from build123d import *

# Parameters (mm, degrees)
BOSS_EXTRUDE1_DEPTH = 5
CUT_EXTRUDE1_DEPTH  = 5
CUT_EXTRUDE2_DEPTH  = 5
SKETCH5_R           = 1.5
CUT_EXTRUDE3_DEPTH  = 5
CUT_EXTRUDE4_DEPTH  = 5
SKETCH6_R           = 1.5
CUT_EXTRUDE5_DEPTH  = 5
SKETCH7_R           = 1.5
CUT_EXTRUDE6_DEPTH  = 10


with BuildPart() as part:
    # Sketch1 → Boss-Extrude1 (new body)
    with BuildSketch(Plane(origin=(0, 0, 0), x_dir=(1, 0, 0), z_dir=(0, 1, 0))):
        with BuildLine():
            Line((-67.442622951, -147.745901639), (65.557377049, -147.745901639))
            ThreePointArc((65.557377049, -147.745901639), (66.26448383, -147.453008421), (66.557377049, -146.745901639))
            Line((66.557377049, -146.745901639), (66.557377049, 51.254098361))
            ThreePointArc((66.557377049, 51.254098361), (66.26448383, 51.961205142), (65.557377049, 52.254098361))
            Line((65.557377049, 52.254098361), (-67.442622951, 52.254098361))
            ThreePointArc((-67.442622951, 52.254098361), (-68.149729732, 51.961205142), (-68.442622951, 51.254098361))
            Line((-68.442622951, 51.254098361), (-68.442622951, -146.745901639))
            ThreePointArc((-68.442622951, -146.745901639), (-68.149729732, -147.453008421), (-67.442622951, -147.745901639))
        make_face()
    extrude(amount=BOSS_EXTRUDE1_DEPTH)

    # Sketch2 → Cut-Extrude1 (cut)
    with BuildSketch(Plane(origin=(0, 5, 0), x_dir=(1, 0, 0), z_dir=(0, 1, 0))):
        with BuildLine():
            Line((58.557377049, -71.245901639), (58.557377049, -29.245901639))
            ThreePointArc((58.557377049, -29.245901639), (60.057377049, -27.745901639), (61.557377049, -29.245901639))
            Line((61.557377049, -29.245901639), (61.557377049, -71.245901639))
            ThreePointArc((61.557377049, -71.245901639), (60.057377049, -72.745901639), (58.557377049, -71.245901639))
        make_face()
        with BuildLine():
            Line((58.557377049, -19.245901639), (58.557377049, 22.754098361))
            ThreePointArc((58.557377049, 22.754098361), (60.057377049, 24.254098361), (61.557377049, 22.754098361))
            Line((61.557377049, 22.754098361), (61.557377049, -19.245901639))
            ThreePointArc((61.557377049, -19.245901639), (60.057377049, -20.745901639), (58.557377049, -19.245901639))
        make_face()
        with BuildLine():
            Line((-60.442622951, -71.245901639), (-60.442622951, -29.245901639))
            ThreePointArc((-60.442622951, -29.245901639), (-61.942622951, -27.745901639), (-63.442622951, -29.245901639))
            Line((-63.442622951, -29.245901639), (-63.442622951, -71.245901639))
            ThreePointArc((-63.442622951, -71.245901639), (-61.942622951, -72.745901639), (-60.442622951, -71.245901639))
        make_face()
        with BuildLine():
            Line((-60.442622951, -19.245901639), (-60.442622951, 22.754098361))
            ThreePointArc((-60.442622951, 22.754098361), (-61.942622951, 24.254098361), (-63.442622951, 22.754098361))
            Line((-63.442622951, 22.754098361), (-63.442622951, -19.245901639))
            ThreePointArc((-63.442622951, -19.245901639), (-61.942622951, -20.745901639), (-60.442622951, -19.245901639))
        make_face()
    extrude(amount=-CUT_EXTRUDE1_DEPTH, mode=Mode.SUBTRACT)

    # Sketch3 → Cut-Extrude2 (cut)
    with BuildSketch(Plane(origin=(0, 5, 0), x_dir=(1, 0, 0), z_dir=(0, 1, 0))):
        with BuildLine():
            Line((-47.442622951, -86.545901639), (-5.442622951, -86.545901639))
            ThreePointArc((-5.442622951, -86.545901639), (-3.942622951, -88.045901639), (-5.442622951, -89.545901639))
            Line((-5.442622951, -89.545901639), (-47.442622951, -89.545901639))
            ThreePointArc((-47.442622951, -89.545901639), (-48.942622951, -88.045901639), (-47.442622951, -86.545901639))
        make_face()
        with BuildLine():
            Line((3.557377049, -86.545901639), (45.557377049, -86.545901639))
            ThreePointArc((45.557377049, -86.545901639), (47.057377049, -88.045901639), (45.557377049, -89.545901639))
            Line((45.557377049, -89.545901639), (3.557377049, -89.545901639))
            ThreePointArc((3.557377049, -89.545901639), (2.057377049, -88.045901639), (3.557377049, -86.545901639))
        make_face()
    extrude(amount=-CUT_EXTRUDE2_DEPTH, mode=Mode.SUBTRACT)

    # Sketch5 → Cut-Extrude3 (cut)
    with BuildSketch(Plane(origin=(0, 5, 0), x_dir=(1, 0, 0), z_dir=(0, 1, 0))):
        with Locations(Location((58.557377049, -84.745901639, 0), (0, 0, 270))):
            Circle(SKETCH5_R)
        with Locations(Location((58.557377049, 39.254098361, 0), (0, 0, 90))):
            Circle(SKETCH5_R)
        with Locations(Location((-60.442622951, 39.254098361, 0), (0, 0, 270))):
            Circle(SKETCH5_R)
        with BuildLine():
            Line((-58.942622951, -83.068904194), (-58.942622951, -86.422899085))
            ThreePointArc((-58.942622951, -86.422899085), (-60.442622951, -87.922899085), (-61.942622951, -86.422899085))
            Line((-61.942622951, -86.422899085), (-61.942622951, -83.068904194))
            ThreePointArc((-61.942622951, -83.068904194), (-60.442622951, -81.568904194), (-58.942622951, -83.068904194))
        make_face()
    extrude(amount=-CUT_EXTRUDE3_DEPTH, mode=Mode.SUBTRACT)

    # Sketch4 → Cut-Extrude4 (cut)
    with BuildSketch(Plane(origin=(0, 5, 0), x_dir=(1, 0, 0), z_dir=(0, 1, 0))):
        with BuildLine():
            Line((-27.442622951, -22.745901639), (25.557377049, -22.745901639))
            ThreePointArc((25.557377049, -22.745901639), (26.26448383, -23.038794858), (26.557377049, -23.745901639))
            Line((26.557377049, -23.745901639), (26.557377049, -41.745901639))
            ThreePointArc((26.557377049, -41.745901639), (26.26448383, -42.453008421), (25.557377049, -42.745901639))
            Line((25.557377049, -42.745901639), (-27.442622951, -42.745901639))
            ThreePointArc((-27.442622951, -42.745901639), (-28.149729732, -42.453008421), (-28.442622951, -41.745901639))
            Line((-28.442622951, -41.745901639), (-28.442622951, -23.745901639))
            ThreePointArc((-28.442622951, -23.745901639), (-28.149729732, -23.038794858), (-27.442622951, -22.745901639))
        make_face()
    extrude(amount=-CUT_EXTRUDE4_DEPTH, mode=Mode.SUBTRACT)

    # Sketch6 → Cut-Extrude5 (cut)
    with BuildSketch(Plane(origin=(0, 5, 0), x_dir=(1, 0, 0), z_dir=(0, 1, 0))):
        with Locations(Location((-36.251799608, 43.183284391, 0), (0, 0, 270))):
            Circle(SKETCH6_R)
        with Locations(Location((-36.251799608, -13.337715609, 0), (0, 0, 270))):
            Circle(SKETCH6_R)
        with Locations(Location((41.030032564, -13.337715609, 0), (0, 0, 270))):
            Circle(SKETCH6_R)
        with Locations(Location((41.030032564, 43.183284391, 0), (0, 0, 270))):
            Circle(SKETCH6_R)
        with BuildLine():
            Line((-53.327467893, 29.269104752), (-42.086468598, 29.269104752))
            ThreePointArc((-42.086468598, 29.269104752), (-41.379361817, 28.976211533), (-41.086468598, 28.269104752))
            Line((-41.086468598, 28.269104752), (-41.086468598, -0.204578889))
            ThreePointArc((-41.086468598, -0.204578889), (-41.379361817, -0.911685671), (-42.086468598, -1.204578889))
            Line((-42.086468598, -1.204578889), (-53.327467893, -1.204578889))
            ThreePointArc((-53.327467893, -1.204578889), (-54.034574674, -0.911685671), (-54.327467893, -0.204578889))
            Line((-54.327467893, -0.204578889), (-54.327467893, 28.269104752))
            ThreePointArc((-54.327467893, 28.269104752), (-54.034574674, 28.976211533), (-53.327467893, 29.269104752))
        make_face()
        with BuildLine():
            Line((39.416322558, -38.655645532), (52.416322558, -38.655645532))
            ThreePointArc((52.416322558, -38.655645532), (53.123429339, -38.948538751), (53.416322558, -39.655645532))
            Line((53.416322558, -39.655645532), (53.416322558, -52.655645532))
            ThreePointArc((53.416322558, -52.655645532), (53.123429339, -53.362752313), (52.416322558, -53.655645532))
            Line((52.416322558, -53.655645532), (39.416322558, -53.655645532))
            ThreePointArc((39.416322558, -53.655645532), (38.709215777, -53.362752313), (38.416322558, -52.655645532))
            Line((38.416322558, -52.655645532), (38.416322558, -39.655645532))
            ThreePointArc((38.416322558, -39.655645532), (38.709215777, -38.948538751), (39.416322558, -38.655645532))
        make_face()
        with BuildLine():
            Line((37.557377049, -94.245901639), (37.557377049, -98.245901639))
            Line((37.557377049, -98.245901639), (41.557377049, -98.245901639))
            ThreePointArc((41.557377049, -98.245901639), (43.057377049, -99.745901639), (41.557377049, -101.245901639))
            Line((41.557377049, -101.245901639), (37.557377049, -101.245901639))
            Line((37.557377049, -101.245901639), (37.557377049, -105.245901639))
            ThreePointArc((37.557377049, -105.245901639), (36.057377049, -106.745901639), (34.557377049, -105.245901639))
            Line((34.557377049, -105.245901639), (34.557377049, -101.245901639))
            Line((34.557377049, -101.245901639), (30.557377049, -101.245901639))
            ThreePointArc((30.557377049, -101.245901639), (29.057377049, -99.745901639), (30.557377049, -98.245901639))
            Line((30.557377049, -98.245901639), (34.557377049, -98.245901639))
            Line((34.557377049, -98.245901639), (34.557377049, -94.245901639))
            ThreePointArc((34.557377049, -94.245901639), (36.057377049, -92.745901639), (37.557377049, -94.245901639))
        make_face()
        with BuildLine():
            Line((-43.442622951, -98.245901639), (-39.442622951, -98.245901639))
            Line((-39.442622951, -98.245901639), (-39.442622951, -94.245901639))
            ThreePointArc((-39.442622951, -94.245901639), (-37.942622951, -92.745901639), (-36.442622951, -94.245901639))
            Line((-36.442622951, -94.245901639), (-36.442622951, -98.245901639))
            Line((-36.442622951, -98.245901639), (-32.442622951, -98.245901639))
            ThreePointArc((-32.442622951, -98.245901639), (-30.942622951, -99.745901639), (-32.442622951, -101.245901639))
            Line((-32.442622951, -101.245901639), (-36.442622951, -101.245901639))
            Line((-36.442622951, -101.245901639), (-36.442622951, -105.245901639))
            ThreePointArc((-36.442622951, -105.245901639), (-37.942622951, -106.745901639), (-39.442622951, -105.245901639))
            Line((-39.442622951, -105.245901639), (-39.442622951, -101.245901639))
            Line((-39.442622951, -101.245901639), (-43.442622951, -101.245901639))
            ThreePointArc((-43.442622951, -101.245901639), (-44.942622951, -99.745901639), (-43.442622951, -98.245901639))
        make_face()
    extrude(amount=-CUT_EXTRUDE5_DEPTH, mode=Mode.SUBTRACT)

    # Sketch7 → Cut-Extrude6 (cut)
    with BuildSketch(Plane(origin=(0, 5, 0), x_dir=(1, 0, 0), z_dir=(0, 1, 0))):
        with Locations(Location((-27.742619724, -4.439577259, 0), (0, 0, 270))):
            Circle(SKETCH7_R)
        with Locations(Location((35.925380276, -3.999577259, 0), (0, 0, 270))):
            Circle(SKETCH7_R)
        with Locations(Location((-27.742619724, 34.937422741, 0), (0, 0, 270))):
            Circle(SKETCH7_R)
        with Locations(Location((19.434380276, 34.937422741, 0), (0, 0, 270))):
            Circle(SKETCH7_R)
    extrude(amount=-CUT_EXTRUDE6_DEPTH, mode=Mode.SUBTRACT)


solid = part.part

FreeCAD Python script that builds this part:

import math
import FreeCAD as App
import Part
import Sketcher
from FreeCAD import Vector
Q = App.Units.Quantity

doc = App.newDocument("Part")
body = doc.addObject("PartDesign::Body", "Body")

# Sketch on XZ plane
sketch1 = body.newObject("Sketcher::SketchObject", "Sketch")
sketch1.AttachmentSupport = (doc.getObject("XZ_Plane"), [""])
sketch1.MapMode = "FlatFace"
sketch1.addGeometry([
    Part.LineSegment(Vector(-67.442623, 147.745902, 0), Vector(65.557377, 147.745902, 0)),  # 0
    Part.ArcOfCircle(Part.Circle(Vector(65.557377, 146.745902, 0), Vector(0, 0, 1), 1), math.radians(0), math.radians(90)),  # 1
    Part.LineSegment(Vector(66.557377, 146.745902, 0), Vector(66.557377, -51.254098, 0)),  # 2
    Part.ArcOfCircle(Part.Circle(Vector(65.557377, -51.254098, 0), Vector(0, 0, 1), 1), math.radians(-90), math.radians(0)),  # 3
    Part.LineSegment(Vector(65.557377, -52.254098, 0), Vector(-67.442623, -52.254098, 0)),  # 4
    Part.ArcOfCircle(Part.Circle(Vector(-67.442623, -51.254098, 0), Vector(0, 0, 1), 1), math.radians(-180), math.radians(-90)),  # 5
    Part.LineSegment(Vector(-68.442623, -51.254098, 0), Vector(-68.442623, 146.745902, 0)),  # 6
    Part.ArcOfCircle(Part.Circle(Vector(-67.442623, 146.745902, 0), Vector(0, 0, 1), 1), math.radians(90), math.radians(180)),  # 7
], False)
sketch1.addConstraint([
    Sketcher.Constraint("Tangent", 0, 2, 1, 2),
    Sketcher.Constraint("Tangent", 1, 1, 2, 1),
    Sketcher.Constraint("Tangent", 2, 2, 3, 2),
    Sketcher.Constraint("Tangent", 3, 1, 4, 1),
    Sketcher.Constraint("Tangent", 4, 2, 5, 2),
    Sketcher.Constraint("Tangent", 5, 1, 6, 1),
    Sketcher.Constraint("Tangent", 6, 2, 7, 2),
    Sketcher.Constraint("Tangent", 7, 1, 0, 1),
    Sketcher.Constraint("Horizontal", 0),
    Sketcher.Constraint("Vertical", 2),
    Sketcher.Constraint("Horizontal", 4),
    Sketcher.Constraint("Vertical", 6),
    Sketcher.Constraint("Equal", 1, 3),
    Sketcher.Constraint("Equal", 3, 5),
    Sketcher.Constraint("Equal", 5, 7),
    Sketcher.Constraint("Radius", 1, Q("1 mm")),
    Sketcher.Constraint("DistanceX", 0, 1, 0, 2, Q("133 mm")),
    Sketcher.Constraint("DistanceY", 2, 2, 2, 1, Q("198 mm")),
    Sketcher.Constraint("DistanceY", -1, 1, 1, 3, Q("146.745902 mm")),
    Sketcher.Constraint("DistanceX", -1, 1, 1, 3, Q("65.557377 mm")),
])
pad1 = body.newObject("PartDesign::Pad", "Pad")
pad1.Profile = sketch1
pad1.Length = 5
pad1.Reversed = True

# Sketch on XZ plane
sketch2 = body.newObject("Sketcher::SketchObject", "Sketch001")
sketch2.AttachmentSupport = (doc.getObject("XZ_Plane"), [""])
sketch2.MapMode = "FlatFace"
sketch2.AttachmentOffset = App.Placement(Vector(0, 0, -5), App.Rotation())
sketch2.addGeometry([
    Part.LineSegment(Vector(58.557377, 29.245902, 0), Vector(58.557377, 71.245902, 0)),  # 0
    Part.ArcOfCircle(Part.Circle(Vector(60.057377, 71.245902, 0), Vector(0, 0, 1), 1.5), math.radians(0), math.radians(180)),  # 1
    Part.LineSegment(Vector(61.557377, 71.245902, 0), Vector(61.557377, 29.245902, 0)),  # 2
    Part.ArcOfCircle(Part.Circle(Vector(60.057377, 29.245902, 0), Vector(0, 0, 1), 1.5), math.radians(180), math.radians(360)),  # 3
    Part.LineSegment(Vector(58.557377, -22.754098, 0), Vector(58.557377, 19.245902, 0)),  # 4
    Part.ArcOfCircle(Part.Circle(Vector(60.057377, 19.245902, 0), Vector(0, 0, 1), 1.5), math.radians(0), math.radians(180)),  # 5
    Part.LineSegment(Vector(61.557377, 19.245902, 0), Vector(61.557377, -22.754098, 0)),  # 6
    Part.ArcOfCircle(Part.Circle(Vector(60.057377, -22.754098, 0), Vector(0, 0, 1), 1.5), math.radians(180), math.radians(360)),  # 7
    Part.LineSegment(Vector(-60.442623, 71.245902, 0), Vector(-60.442623, 29.245902, 0)),  # 8
    Part.ArcOfCircle(Part.Circle(Vector(-61.942623, 29.245902, 0), Vector(0, 0, 1), 1.5), math.radians(180), math.radians(360)),  # 9
    Part.LineSegment(Vector(-63.442623, 29.245902, 0), Vector(-63.442623, 71.245902, 0)),  # 10
    Part.ArcOfCircle(Part.Circle(Vector(-61.942623, 71.245902, 0), Vector(0, 0, 1), 1.5), math.radians(0), math.radians(180)),  # 11
    Part.LineSegment(Vector(-60.442623, 19.245902, 0), Vector(-60.442623, -22.754098, 0)),  # 12
    Part.ArcOfCircle(Part.Circle(Vector(-61.942623, -22.754098, 0), Vector(0, 0, 1), 1.5), math.radians(180), math.radians(360)),  # 13
    Part.LineSegment(Vector(-63.442623, -22.754098, 0), Vector(-63.442623, 19.245902, 0)),  # 14
    Part.ArcOfCircle(Part.Circle(Vector(-61.942623, 19.245902, 0), Vector(0, 0, 1), 1.5), math.radians(0), math.radians(180)),  # 15
], False)
sketch2.addConstraint([
    Sketcher.Constraint("Tangent", 0, 2, 1, 2),
    Sketcher.Constraint("Tangent", 1, 1, 2, 1),
    Sketcher.Constraint("Tangent", 2, 2, 3, 2),
    Sketcher.Constraint("Tangent", 3, 1, 0, 1),
    Sketcher.Constraint("Tangent", 4, 2, 5, 2),
    Sketcher.Constraint("Tangent", 5, 1, 6, 1),
    Sketcher.Constraint("Tangent", 6, 2, 7, 2),
    Sketcher.Constraint("Tangent", 7, 1, 4, 1),
    Sketcher.Constraint("Tangent", 8, 2, 9, 2),
    Sketcher.Constraint("Tangent", 9, 1, 10, 1),
    Sketcher.Constraint("Tangent", 10, 2, 11, 2),
    Sketcher.Constraint("Tangent", 11, 1, 8, 1),
    Sketcher.Constraint("Tangent", 12, 2, 13, 2),
    Sketcher.Constraint("Tangent", 13, 1, 14, 1),
    Sketcher.Constraint("Tangent", 14, 2, 15, 2),
    Sketcher.Constraint("Tangent", 15, 1, 12, 1),
    Sketcher.Constraint("Vertical", 0),
    Sketcher.Constraint("Vertical", 2),
    Sketcher.Constraint("Vertical", 4),
    Sketcher.Constraint("Vertical", 6),
    Sketcher.Constraint("Vertical", 8),
    Sketcher.Constraint("Vertical", 10),
    Sketcher.Constraint("Vertical", 12),
    Sketcher.Constraint("Vertical", 14),
    Sketcher.Constraint("Equal", 3, 5),
    Sketcher.Constraint("Equal", 7, 9),
    Sketcher.Constraint("Equal", 11, 13),
    Sketcher.Constraint("Horizontal", 3, 3, 9, 3),
    Sketcher.Constraint("Horizontal", 1, 3, 11, 3),
    Sketcher.Constraint("Horizontal", 7, 3, 13, 3),
    Sketcher.Constraint("Horizontal", 5, 3, 15, 3),
    Sketcher.Constraint("Vertical", 3, 3, 5, 3),
    Sketcher.Constraint("Vertical", 11, 3, 13, 3),
    Sketcher.Constraint("Equal", 2, 4),
    Sketcher.Constraint("Radius", 1, Q("1.5 mm")),
    Sketcher.Constraint("DistanceY", 0, 1, 0, 2, Q("42 mm")),
    Sketcher.Constraint("DistanceY", 5, 3, 3, 3, Q("10 mm")),
    Sketcher.Constraint("DistanceX", 9, 3, 3, 3, Q("122 mm")),
    Sketcher.Constraint("DistanceY", -1, 1, 1, 3, Q("71.245902 mm")),
    Sketcher.Constraint("DistanceX", -1, 1, 1, 3, Q("60.057377 mm")),
])
pocket1 = body.newObject("PartDesign::Pocket", "Pocket")
pocket1.Profile = sketch2
pocket1.Length = 5
pocket1.Reversed = True

# Sketch on XZ plane
sketch3 = body.newObject("Sketcher::SketchObject", "Sketch002")
sketch3.AttachmentSupport = (doc.getObject("XZ_Plane"), [""])
sketch3.MapMode = "FlatFace"
sketch3.AttachmentOffset = App.Placement(Vector(0, 0, -5), App.Rotation())
sketch3.addGeometry([
    Part.LineSegment(Vector(-5.442623, 86.545902, 0), Vector(-47.442623, 86.545902, 0)),  # 0
    Part.ArcOfCircle(Part.Circle(Vector(-47.442623, 88.045902, 0), Vector(0, 0, 1), 1.5), math.radians(90), math.radians(270)),  # 1
    Part.LineSegment(Vector(-47.442623, 89.545902, 0), Vector(-5.442623, 89.545902, 0)),  # 2
    Part.ArcOfCircle(Part.Circle(Vector(-5.442623, 88.045902, 0), Vector(0, 0, 1), 1.5), math.radians(-90), math.radians(90)),  # 3
    Part.LineSegment(Vector(45.557377, 86.545902, 0), Vector(3.557377, 86.545902, 0)),  # 4
    Part.ArcOfCircle(Part.Circle(Vector(3.557377, 88.045902, 0), Vector(0, 0, 1), 1.5), math.radians(90), math.radians(270)),  # 5
    Part.LineSegment(Vector(3.557377, 89.545902, 0), Vector(45.557377, 89.545902, 0)),  # 6
    Part.ArcOfCircle(Part.Circle(Vector(45.557377, 88.045902, 0), Vector(0, 0, 1), 1.5), math.radians(-90), math.radians(90)),  # 7
], False)
sketch3.addConstraint([
    Sketcher.Constraint("Tangent", 0, 2, 1, 2),
    Sketcher.Constraint("Tangent", 1, 1, 2, 1),
    Sketcher.Constraint("Tangent", 2, 2, 3, 2),
    Sketcher.Constraint("Tangent", 3, 1, 0, 1),
    Sketcher.Constraint("Tangent", 4, 2, 5, 2),
    Sketcher.Constraint("Tangent", 5, 1, 6, 1),
    Sketcher.Constraint("Tangent", 6, 2, 7, 2),
    Sketcher.Constraint("Tangent", 7, 1, 4, 1),
    Sketcher.Constraint("Horizontal", 0),
    Sketcher.Constraint("Horizontal", 2),
    Sketcher.Constraint("Horizontal", 4),
    Sketcher.Constraint("Horizontal", 6),
    Sketcher.Constraint("Equal", 3, 5),
    Sketcher.Constraint("Horizontal", 3, 3, 5, 3),
    Sketcher.Constraint("Equal", 2, 4),
    Sketcher.Constraint("Radius", 1, Q("1.5 mm")),
    Sketcher.Constraint("DistanceX", 0, 2, 0, 1, Q("42 mm")),
    Sketcher.Constraint("DistanceX", 3, 3, 5, 3, Q("9 mm")),
    Sketcher.Constraint("DistanceY", -1, 1, 1, 3, Q("88.045902 mm")),
    Sketcher.Constraint("DistanceX", 1, 3, -1, 1, Q("47.442623 mm")),
])
pocket2 = body.newObject("PartDesign::Pocket", "Pocket001")
pocket2.Profile = sketch3
pocket2.Length = 5
pocket2.Reversed = True

# Sketch on XZ plane
sketch4 = body.newObject("Sketcher::SketchObject", "Sketch003")
sketch4.AttachmentSupport = (doc.getObject("XZ_Plane"), [""])
sketch4.MapMode = "FlatFace"
sketch4.AttachmentOffset = App.Placement(Vector(0, 0, -5), App.Rotation())
sketch4.addGeometry([
    Part.Circle(Vector(58.557377, 84.745902, 0), Vector(0, 0, 1), 1.5),  # 0
    Part.Circle(Vector(58.557377, -39.254098, 0), Vector(0, 0, 1), 1.5),  # 1
    Part.Circle(Vector(-60.442623, -39.254098, 0), Vector(0, 0, 1), 1.5),  # 2
    Part.LineSegment(Vector(-58.942623, 86.422899, 0), Vector(-58.942623, 83.068904, 0)),  # 3
    Part.ArcOfCircle(Part.Circle(Vector(-60.442623, 83.068904, 0), Vector(0, 0, 1), 1.5), math.radians(180), math.radians(360)),  # 4
    Part.LineSegment(Vector(-61.942623, 83.068904, 0), Vector(-61.942623, 86.422899, 0)),  # 5
    Part.ArcOfCircle(Part.Circle(Vector(-60.442623, 86.422899, 0), Vector(0, 0, 1), 1.5), math.radians(0), math.radians(180)),  # 6
], False)
sketch4.addConstraint([
    Sketcher.Constraint("Tangent", 3, 2, 4, 2),
    Sketcher.Constraint("Tangent", 4, 1, 5, 1),
    Sketcher.Constraint("Tangent", 5, 2, 6, 2),
    Sketcher.Constraint("Tangent", 6, 1, 3, 1),
    Sketcher.Constraint("Vertical", 3),
    Sketcher.Constraint("Vertical", 5),
    Sketcher.Constraint("Equal", 0, 1),
    Sketcher.Constraint("Equal", 1, 2),
    Sketcher.Constraint("Equal", 2, 4),
    Sketcher.Constraint("Horizontal", 1, 3, 2, 3),
    Sketcher.Constraint("Vertical", 0, 3, 1, 3),
    Sketcher.Constraint("Vertical", 2, 3, 4, 3),
    Sketcher.Constraint("Diameter", 0, Q("3 mm")),
    Sketcher.Constraint("DistanceY", 1, 3, 0, 3, Q("124 mm")),
    Sketcher.Constraint("DistanceX", 2, 3, 1, 3, Q("119 mm")),
    Sketcher.Constraint("DistanceY", -1, 1, 0, 3, Q("84.745902 mm")),
    Sketcher.Constraint("DistanceY", -1, 1, 6, 3, Q("86.422899 mm")),
    Sketcher.Constraint("DistanceY", 3, 2, 3, 1, Q("3.353995 mm")),
    Sketcher.Constraint("DistanceX", -1, 1, 0, 3, Q("58.557377 mm")),
])
pocket3 = body.newObject("PartDesign::Pocket", "Pocket002")
pocket3.Profile = sketch4
pocket3.Length = 5
pocket3.Reversed = True

# Sketch on XZ plane
sketch5 = body.newObject("Sketcher::SketchObject", "Sketch004")
sketch5.AttachmentSupport = (doc.getObject("XZ_Plane"), [""])
sketch5.MapMode = "FlatFace"
sketch5.AttachmentOffset = App.Placement(Vector(0, 0, -5), App.Rotation())
sketch5.addGeometry([
    Part.LineSegment(Vector(25.557377, 22.745902, 0), Vector(-27.442623, 22.745902, 0)),  # 0
    Part.ArcOfCircle(Part.Circle(Vector(-27.442623, 23.745902, 0), Vector(0, 0, 1), 1), math.radians(-180), math.radians(-90)),  # 1
    Part.LineSegment(Vector(-28.442623, 23.745902, 0), Vector(-28.442623, 41.745902, 0)),  # 2
    Part.ArcOfCircle(Part.Circle(Vector(-27.442623, 41.745902, 0), Vector(0, 0, 1), 1), math.radians(90), math.radians(180)),  # 3
    Part.LineSegment(Vector(-27.442623, 42.745902, 0), Vector(25.557377, 42.745902, 0)),  # 4
    Part.ArcOfCircle(Part.Circle(Vector(25.557377, 41.745902, 0), Vector(0, 0, 1), 1), math.radians(0), math.radians(90)),  # 5
    Part.LineSegment(Vector(26.557377, 41.745902, 0), Vector(26.557377, 23.745902, 0)),  # 6
    Part.ArcOfCircle(Part.Circle(Vector(25.557377, 23.745902, 0), Vector(0, 0, 1), 1), math.radians(-90), math.radians(0)),  # 7
], False)
sketch5.addConstraint([
    Sketcher.Constraint("Tangent", 0, 2, 1, 2),
    Sketcher.Constraint("Tangent", 1, 1, 2, 1),
    Sketcher.Constraint("Tangent", 2, 2, 3, 2),
    Sketcher.Constraint("Tangent", 3, 1, 4, 1),
    Sketcher.Constraint("Tangent", 4, 2, 5, 2),
    Sketcher.Constraint("Tangent", 5, 1, 6, 1),
    Sketcher.Constraint("Tangent", 6, 2, 7, 2),
    Sketcher.Constraint("Tangent", 7, 1, 0, 1),
    Sketcher.Constraint("Horizontal", 0),
    Sketcher.Constraint("Vertical", 2),
    Sketcher.Constraint("Horizontal", 4),
    Sketcher.Constraint("Vertical", 6),
    Sketcher.Constraint("Equal", 1, 3),
    Sketcher.Constraint("Equal", 3, 5),
    Sketcher.Constraint("Equal", 5, 7),
    Sketcher.Constraint("Radius", 1, Q("1 mm")),
    Sketcher.Constraint("DistanceX", 0, 2, 0, 1, Q("53 mm")),
    Sketcher.Constraint("DistanceY", 2, 1, 2, 2, Q("18 mm")),
    Sketcher.Constraint("DistanceY", -1, 1, 1, 3, Q("23.745902 mm")),
    Sketcher.Constraint("DistanceX", 1, 3, -1, 1, Q("27.442623 mm")),
])
pocket4 = body.newObject("PartDesign::Pocket", "Pocket003")
pocket4.Profile = sketch5
pocket4.Length = 5
pocket4.Reversed = True

# Sketch on XZ plane
sketch6 = body.newObject("Sketcher::SketchObject", "Sketch005")
sketch6.AttachmentSupport = (doc.getObject("XZ_Plane"), [""])
sketch6.MapMode = "FlatFace"
sketch6.AttachmentOffset = App.Placement(Vector(0, 0, -5), App.Rotation())
sketch6.addGeometry([
    Part.Circle(Vector(-36.2518, -43.183284, 0), Vector(0, 0, 1), 1.5),  # 0
    Part.Circle(Vector(-36.2518, 13.337716, 0), Vector(0, 0, 1), 1.5),  # 1
    Part.Circle(Vector(41.030033, 13.337716, 0), Vector(0, 0, 1), 1.5),  # 2
    Part.Circle(Vector(41.030033, -43.183284, 0), Vector(0, 0, 1), 1.5),  # 3
    Part.LineSegment(Vector(-42.086469, -29.269105, 0), Vector(-53.327468, -29.269105, 0)),  # 4
    Part.ArcOfCircle(Part.Circle(Vector(-53.327468, -28.269105, 0), Vector(0, 0, 1), 1), math.radians(-180), math.radians(-90)),  # 5
    Part.LineSegment(Vector(-54.327468, -28.269105, 0), Vector(-54.327468, 0.204579, 0)),  # 6
    Part.ArcOfCircle(Part.Circle(Vector(-53.327468, 0.204579, 0), Vector(0, 0, 1), 1), math.radians(90), math.radians(180)),  # 7
    Part.LineSegment(Vector(-53.327468, 1.204579, 0), Vector(-42.086469, 1.204579, 0)),  # 8
    Part.ArcOfCircle(Part.Circle(Vector(-42.086469, 0.204579, 0), Vector(0, 0, 1), 1), math.radians(0), math.radians(90)),  # 9
    Part.LineSegment(Vector(-41.086469, 0.204579, 0), Vector(-41.086469, -28.269105, 0)),  # 10
    Part.ArcOfCircle(Part.Circle(Vector(-42.086469, -28.269105, 0), Vector(0, 0, 1), 1), math.radians(-90), math.radians(0)),  # 11
    Part.LineSegment(Vector(52.416323, 38.655646, 0), Vector(39.416323, 38.655646, 0)),  # 12
    Part.ArcOfCircle(Part.Circle(Vector(39.416323, 39.655646, 0), Vector(0, 0, 1), 1), math.radians(-180), math.radians(-90)),  # 13
    Part.LineSegment(Vector(38.416323, 39.655646, 0), Vector(38.416323, 52.655646, 0)),  # 14
    Part.ArcOfCircle(Part.Circle(Vector(39.416323, 52.655646, 0), Vector(0, 0, 1), 1), math.radians(90), math.radians(180)),  # 15
    Part.LineSegment(Vector(39.416323, 53.655646, 0), Vector(52.416323, 53.655646, 0)),  # 16
    Part.ArcOfCircle(Part.Circle(Vector(52.416323, 52.655646, 0), Vector(0, 0, 1), 1), math.radians(0), math.radians(90)),  # 17
    Part.LineSegment(Vector(53.416323, 52.655646, 0), Vector(53.416323, 39.655646, 0)),  # 18
    Part.ArcOfCircle(Part.Circle(Vector(52.416323, 39.655646, 0), Vector(0, 0, 1), 1), math.radians(-90), math.radians(0)),  # 19
    Part.LineSegment(Vector(37.557377, 98.245902, 0), Vector(37.557377, 94.245902, 0)),  # 20
    Part.ArcOfCircle(Part.Circle(Vector(36.057377, 94.245902, 0), Vector(0, 0, 1), 1.5), math.radians(180), math.radians(360)),  # 21
    Part.LineSegment(Vector(34.557377, 94.245902, 0), Vector(34.557377, 98.245902, 0)),  # 22
    Part.LineSegment(Vector(34.557377, 98.245902, 0), Vector(30.557377, 98.245902, 0)),  # 23
    Part.ArcOfCircle(Part.Circle(Vector(30.557377, 99.745902, 0), Vector(0, 0, 1), 1.5), math.radians(90), math.radians(270)),  # 24
    Part.LineSegment(Vector(30.557377, 101.245902, 0), Vector(34.557377, 101.245902, 0)),  # 25
    Part.LineSegment(Vector(34.557377, 101.245902, 0), Vector(34.557377, 105.245902, 0)),  # 26
    Part.ArcOfCircle(Part.Circle(Vector(36.057377, 105.245902, 0), Vector(0, 0, 1), 1.5), math.radians(0), math.radians(180)),  # 27
    Part.LineSegment(Vector(37.557377, 105.245902, 0), Vector(37.557377, 101.245902, 0)),  # 28
    Part.LineSegment(Vector(37.557377, 101.245902, 0), Vector(41.557377, 101.245902, 0)),  # 29
    Part.ArcOfCircle(Part.Circle(Vector(41.557377, 99.745902, 0), Vector(0, 0, 1), 1.5), math.radians(-90), math.radians(90)),  # 30
    Part.LineSegment(Vector(41.557377, 98.245902, 0), Vector(37.557377, 98.245902, 0)),  # 31
    Part.LineSegment(Vector(-39.442623, 98.245902, 0), Vector(-43.442623, 98.245902, 0)),  # 32
    Part.ArcOfCircle(Part.Circle(Vector(-43.442623, 99.745902, 0), Vector(0, 0, 1), 1.5), math.radians(90), math.radians(270)),  # 33
    Part.LineSegment(Vector(-43.442623, 101.245902, 0), Vector(-39.442623, 101.245902, 0)),  # 34
    Part.LineSegment(Vector(-39.442623, 101.245902, 0), Vector(-39.442623, 105.245902, 0)),  # 35
    Part.ArcOfCircle(Part.Circle(Vector(-37.942623, 105.245902, 0), Vector(0, 0, 1), 1.5), math.radians(0), math.radians(180)),  # 36
    Part.LineSegment(Vector(-36.442623, 105.245902, 0), Vector(-36.442623, 101.245902, 0)),  # 37
    Part.LineSegment(Vector(-36.442623, 101.245902, 0), Vector(-32.442623, 101.245902, 0)),  # 38
    Part.ArcOfCircle(Part.Circle(Vector(-32.442623, 99.745902, 0), Vector(0, 0, 1), 1.5), math.radians(-90), math.radians(90)),  # 39
    Part.LineSegment(Vector(-32.442623, 98.245902, 0), Vector(-36.442623, 98.245902, 0)),  # 40
    Part.LineSegment(Vector(-36.442623, 98.245902, 0), Vector(-36.442623, 94.245902, 0)),  # 41
    Part.ArcOfCircle(Part.Circle(Vector(-37.942623, 94.245902, 0), Vector(0, 0, 1), 1.5), math.radians(180), math.radians(360)),  # 42
    Part.LineSegment(Vector(-39.442623, 94.245902, 0), Vector(-39.442623, 98.245902, 0)),  # 43
], False)
sketch6.addConstraint([
    Sketcher.Constraint("Tangent", 4, 2, 5, 2),
    Sketcher.Constraint("Tangent", 5, 1, 6, 1),
    Sketcher.Constraint("Tangent", 6, 2, 7, 2),
    Sketcher.Constraint("Tangent", 7, 1, 8, 1),
    Sketcher.Constraint("Tangent", 8, 2, 9, 2),
    Sketcher.Constraint("Tangent", 9, 1, 10, 1),
    Sketcher.Constraint("Tangent", 10, 2, 11, 2),
    Sketcher.Constraint("Tangent", 11, 1, 4, 1),
    Sketcher.Constraint("Tangent", 12, 2, 13, 2),
    Sketcher.Constraint("Tangent", 13, 1, 14, 1),
    Sketcher.Constraint("Tangent", 14, 2, 15, 2),
    Sketcher.Constraint("Tangent", 15, 1, 16, 1),
    Sketcher.Constraint("Tangent", 16, 2, 17, 2),
    Sketcher.Constraint("Tangent", 17, 1, 18, 1),
    Sketcher.Constraint("Tangent", 18, 2, 19, 2),
    Sketcher.Constraint("Tangent", 19, 1, 12, 1),
    Sketcher.Constraint("Tangent", 20, 2, 21, 2),
    Sketcher.Constraint("Tangent", 21, 1, 22, 1),
    Sketcher.Constraint("Coincident", 22, 2, 23, 1),
    Sketcher.Constraint("Tangent", 23, 2, 24, 2),
    Sketcher.Constraint("Tangent", 24, 1, 25, 1),
    Sketcher.Constraint("Coincident", 25, 2, 26, 1),
    Sketcher.Constraint("Tangent", 26, 2, 27, 2),
    Sketcher.Constraint("Tangent", 27, 1, 28, 1),
    Sketcher.Constraint("Coincident", 28, 2, 29, 1),
    Sketcher.Constraint("Tangent", 29, 2, 30, 2),
    Sketcher.Constraint("Tangent", 30, 1, 31, 1),
    Sketcher.Constraint("Coincident", 31, 2, 20, 1),
    Sketcher.Constraint("Tangent", 32, 2, 33, 2),
    Sketcher.Constraint("Tangent", 33, 1, 34, 1),
    Sketcher.Constraint("Coincident", 34, 2, 35, 1),
    Sketcher.Constraint("Tangent", 35, 2, 36, 2),
    Sketcher.Constraint("Tangent", 36, 1, 37, 1),
    Sketcher.Constraint("Coincident", 37, 2, 38, 1),
    Sketcher.Constraint("Tangent", 38, 2, 39, 2),
    Sketcher.Constraint("Tangent", 39, 1, 40, 1),
    Sketcher.Constraint("Coincident", 40, 2, 41, 1),
    Sketcher.Constraint("Tangent", 41, 2, 42, 2),
    Sketcher.Constraint("Tangent", 42, 1, 43, 1),
    Sketcher.Constraint("Coincident", 43, 2, 32, 1),
    Sketcher.Constraint("Horizontal", 4),
    Sketcher.Constraint("Vertical", 6),
    Sketcher.Constraint("Horizontal", 8),
    Sketcher.Constraint("Vertical", 10),
    Sketcher.Constraint("Horizontal", 12),
    Sketcher.Constraint("Vertical", 14),
    Sketcher.Constraint("Horizontal", 16),
    Sketcher.Constraint("Vertical", 18),
    Sketcher.Constraint("Vertical", 20),
    Sketcher.Constraint("Vertical", 22),
    Sketcher.Constraint("Horizontal", 23),
    Sketcher.Constraint("Horizontal", 25),
    Sketcher.Constraint("Vertical", 26),
    Sketcher.Constraint("Vertical", 28),
    Sketcher.Constraint("Horizontal", 29),
    Sketcher.Constraint("Horizontal", 31),
    Sketcher.Constraint("Horizontal", 32),
    Sketcher.Constraint("Horizontal", 34),
    Sketcher.Constraint("Vertical", 35),
    Sketcher.Constraint("Vertical", 37),
    Sketcher.Constraint("Horizontal", 38),
    Sketcher.Constraint("Horizontal", 40),
    Sketcher.Constraint("Vertical", 41),
    Sketcher.Constraint("Vertical", 43),
    Sketcher.Constraint("Equal", 0, 1),
    Sketcher.Constraint("Equal", 1, 2),
    Sketcher.Constraint("Equal", 2, 3),
    Sketcher.Constraint("Equal", 5, 7),
    Sketcher.Constraint("Equal", 7, 9),
    Sketcher.Constraint("Equal", 9, 11),
    Sketcher.Constraint("Equal", 11, 13),
    Sketcher.Constraint("Equal", 13, 15),
    Sketcher.Constraint("Equal", 15, 17),
    Sketcher.Constraint("Equal", 17, 19),
    Sketcher.Constraint("Equal", 3, 21),
    Sketcher.Constraint("Equal", 21, 24),
    Sketcher.Constraint("Equal", 24, 27),
    Sketcher.Constraint("Equal", 27, 30),
    Sketcher.Constraint("Equal", 30, 33),
    Sketcher.Constraint("Equal", 33, 36),
    Sketcher.Constraint("Equal", 36, 39),
    Sketcher.Constraint("Equal", 39, 42),
    Sketcher.Constraint("Horizontal", 1, 3, 2, 3),
    Sketcher.Constraint("Horizontal", 0, 3, 3, 3),
    Sketcher.Constraint("Horizontal", 24, 3, 30, 3),
    Sketcher.Constraint("Horizontal", 30, 3, 33, 3),
    Sketcher.Constraint("Horizontal", 27, 3, 36, 3),
    Sketcher.Constraint("Horizontal", 33, 3, 39, 3),
    Sketcher.Constraint("Horizontal", 21, 3, 42, 3),
    Sketcher.Constraint("Vertical", 0, 3, 1, 3),
    Sketcher.Constraint("Vertical", 2, 3, 3, 3),
    Sketcher.Constraint("Vertical", 21, 3, 27, 3),
    Sketcher.Constraint("Vertical", 36, 3, 42, 3),
    Sketcher.Constraint("Equal", 25, 29),
    Sketcher.Constraint("Equal", 31, 32),
    Sketcher.Constraint("Equal", 34, 38),
    Sketcher.Constraint("Equal", 16, 14),
    Sketcher.Constraint("Equal", 40, 20),
    Sketcher.Constraint("Equal", 22, 26),
    Sketcher.Constraint("Diameter", 0, Q("3 mm")),
    Sketcher.Constraint("Radius", 5, Q("1 mm")),
    Sketcher.Constraint("DistanceX", 12, 2, 12, 1, Q("13 mm")),
    Sketcher.Constraint("DistanceX", 23, 2, 23, 1, Q("4 mm")),
    Sketcher.Constraint("DistanceX", 33, 3, 24, 3, Q("74 mm")),
    Sketcher.Constraint("DistanceX", 4, 2, 4, 1, Q("11.240999 mm")),
    Sketcher.Constraint("DistanceY", 0, 3, 1, 3, Q("56.521 mm")),
    Sketcher.Constraint("DistanceX", 0, 3, -1, 1, Q("36.2518 mm")),
    Sketcher.Constraint("DistanceY", -1, 1, 21, 3, Q("94.245902 mm")),
    Sketcher.Constraint("DistanceX", 5, 3, 3, 3, Q("94.3575 mm")),
    Sketcher.Constraint("DistanceY", 6, 1, 6, 2, Q("28.473684 mm")),
    Sketcher.Constraint("DistanceY", -1, 1, 7, 3, Q("0.204579 mm")),
    Sketcher.Constraint("DistanceX", 9, 3, -1, 1, Q("42.086469 mm")),
    Sketcher.Constraint("DistanceY", 0, 3, 5, 3, Q("14.91418 mm")),
    Sketcher.Constraint("DistanceX", 13, 3, 2, 3, Q("1.61371 mm")),
    Sketcher.Constraint("DistanceY", 2, 3, 13, 3, Q("26.31793 mm")),
    Sketcher.Constraint("DistanceX", -1, 1, 21, 3, Q("36.057377 mm")),
])
pocket5 = body.newObject("PartDesign::Pocket", "Pocket004")
pocket5.Profile = sketch6
pocket5.Length = 5
pocket5.Reversed = True

# Sketch on XZ plane
sketch7 = body.newObject("Sketcher::SketchObject", "Sketch006")
sketch7.AttachmentSupport = (doc.getObject("XZ_Plane"), [""])
sketch7.MapMode = "FlatFace"
sketch7.AttachmentOffset = App.Placement(Vector(0, 0, -5), App.Rotation())
sketch7.addGeometry([
    Part.Circle(Vector(-27.74262, 4.439577, 0), Vector(0, 0, 1), 1.5),
    Part.Circle(Vector(35.92538, 3.999577, 0), Vector(0, 0, 1), 1.5),
    Part.Circle(Vector(-27.74262, -34.937423, 0), Vector(0, 0, 1), 1.5),
    Part.Circle(Vector(19.43438, -34.937423, 0), Vector(0, 0, 1), 1.5),
], False)
sketch7.addConstraint([
    Sketcher.Constraint("Equal", 0, 1),
    Sketcher.Constraint("Equal", 1, 2),
    Sketcher.Constraint("Equal", 2, 3),
    Sketcher.Constraint("Horizontal", 2, 3, 3, 3),
    Sketcher.Constraint("Vertical", 0, 3, 2, 3),
    Sketcher.Constraint("Diameter", 0, Q("3 mm")),
    Sketcher.Constraint("DistanceY", 1, 3, 0, 3, Q("0.44 mm")),
    Sketcher.Constraint("DistanceX", 0, 3, 1, 3, Q("63.668 mm")),
    Sketcher.Constraint("DistanceY", 2, 3, 0, 3, Q("39.377 mm")),
    Sketcher.Constraint("DistanceX", 3, 3, 1, 3, Q("16.491 mm")),
    Sketcher.Constraint("DistanceX", 0, 3, -1, 1, Q("27.74262 mm")),
    Sketcher.Constraint("DistanceY", -1, 1, 0, 3, Q("4.439577 mm")),
])
pocket6 = body.newObject("PartDesign::Pocket", "Pocket005")
pocket6.Profile = sketch7
pocket6.Length = 10
pocket6.Reversed = True

doc.recompute()
